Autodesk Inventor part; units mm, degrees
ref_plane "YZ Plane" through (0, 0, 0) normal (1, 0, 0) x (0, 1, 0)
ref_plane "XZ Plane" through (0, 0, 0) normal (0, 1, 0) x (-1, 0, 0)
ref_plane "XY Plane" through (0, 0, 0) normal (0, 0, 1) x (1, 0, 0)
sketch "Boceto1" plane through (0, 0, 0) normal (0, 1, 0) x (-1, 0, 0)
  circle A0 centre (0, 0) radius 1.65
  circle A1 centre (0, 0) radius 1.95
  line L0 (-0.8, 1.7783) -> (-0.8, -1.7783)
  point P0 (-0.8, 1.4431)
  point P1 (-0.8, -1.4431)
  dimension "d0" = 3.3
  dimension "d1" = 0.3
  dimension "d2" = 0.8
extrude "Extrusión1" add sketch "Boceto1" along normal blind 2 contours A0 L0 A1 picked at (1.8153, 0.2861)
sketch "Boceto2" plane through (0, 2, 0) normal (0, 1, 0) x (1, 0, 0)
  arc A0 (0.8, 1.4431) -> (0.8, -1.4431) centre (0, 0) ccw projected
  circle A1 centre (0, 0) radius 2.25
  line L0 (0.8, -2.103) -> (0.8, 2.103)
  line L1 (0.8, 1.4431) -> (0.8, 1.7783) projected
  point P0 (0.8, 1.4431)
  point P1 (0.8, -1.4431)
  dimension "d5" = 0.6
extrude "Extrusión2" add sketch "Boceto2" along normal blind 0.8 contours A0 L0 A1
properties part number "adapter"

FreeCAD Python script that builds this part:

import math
import FreeCAD as App
import Part
import Sketcher
Q = App.Units.Quantity

doc = App.newDocument("Part")
body = doc.addObject("PartDesign::Body", "Body")

# Sketch on XZ plane
sketch1 = body.newObject("Sketcher::SketchObject", "Sketch")
sketch1.AttachmentSupport = (doc.getObject("XZ_Plane"), [""])
sketch1.MapMode = "FlatFace"
sketch1.addGeometry([
    Part.ArcOfCircle(Part.Circle(App.Vector(0, 0, 0), App.Vector(0, 0, 1), 1.65), math.radians(60.997454), math.radians(299.002546)),
    Part.LineSegment(App.Vector(0.8, -1.443087, 0), App.Vector(0.8, -1.7783, 0)),
    Part.ArcOfCircle(Part.Circle(App.Vector(0, 0, 0), App.Vector(0, 0, 1), 1.95), math.radians(65.778552), math.radians(294.221448)),
    Part.LineSegment(App.Vector(0.8, 1.7783, 0), App.Vector(0.8, 1.443087, 0)),
], False)
sketch1.addConstraint([
    Sketcher.Constraint("Coincident", 0, 2, 1, 1),
    Sketcher.Constraint("Coincident", 1, 2, 2, 2),
    Sketcher.Constraint("Coincident", 2, 1, 3, 1),
    Sketcher.Constraint("Coincident", 3, 2, 0, 1),
    Sketcher.Constraint("Vertical", 1),
    Sketcher.Constraint("Vertical", 3),
    Sketcher.Constraint("Coincident", 0, 3, -1, 1),
    Sketcher.Constraint("Coincident", 2, 3, -1, 1),
    Sketcher.Constraint("Vertical", 1, 2, 2, 1),
    Sketcher.Constraint("Radius", 0, Q("1.65 mm")),
    Sketcher.Constraint("DistanceX", -1, 1, 0, 2, Q("0.8 mm")),
    Sketcher.Constraint("Radius", 2, Q("1.95 mm")),
])
pad1 = body.newObject("PartDesign::Pad", "Pad")
pad1.Profile = sketch1
pad1.Length = 2
pad1.Reversed = True

# Sketch on XZ plane
sketch2 = body.newObject("Sketcher::SketchObject", "Sketch001")
sketch2.AttachmentSupport = (doc.getObject("XZ_Plane"), [""])
sketch2.MapMode = "FlatFace"
sketch2.AttachmentOffset = App.Placement(App.Vector(0, 0, -2), App.Rotation())
sketch2.addGeometry([
    Part.ArcOfCircle(Part.Circle(App.Vector(0, 0, 0), App.Vector(0, 0, 1), 1.650011), math.radians(60.997673), math.radians(299.002327)),
    Part.LineSegment(App.Vector(0.8, -1.4431, 0), App.Vector(0.8, -2.103, 0)),
    Part.ArcOfCircle(Part.Circle(App.Vector(0, 0, 0), App.Vector(0, 0, 1), 2.25), math.radians(69.172738), math.radians(290.827262)),
    Part.LineSegment(App.Vector(0.8, 2.103, 0), App.Vector(0.8, 1.4431, 0)),
], False)
sketch2.addConstraint([
    Sketcher.Constraint("Coincident", 0, 2, 1, 1),
    Sketcher.Constraint("Coincident", 1, 2, 2, 2),
    Sketcher.Constraint("Coincident", 2, 1, 3, 1),
    Sketcher.Constraint("Coincident", 3, 2, 0, 1),
    Sketcher.Constraint("Vertical", 1),
    Sketcher.Constraint("Vertical", 3),
    Sketcher.Constraint("Coincident", 0, 3, -1, 1),
    Sketcher.Constraint("Coincident", 2, 3, -1, 1),
    Sketcher.Constraint("Vertical", 1, 2, 2, 1),
    Sketcher.Constraint("Radius", 0, Q("1.65 mm")),
    Sketcher.Constraint("Radius", 2, Q("2.25 mm")),
    Sketcher.Constraint("DistanceY", 1, 2, 1, 1, Q("0.66 mm")),
])
pad2 = body.newObject("PartDesign::Pad", "Pad001")
pad2.Profile = sketch2
pad2.Length = 0.8
pad2.Reversed = True

doc.recompute()
